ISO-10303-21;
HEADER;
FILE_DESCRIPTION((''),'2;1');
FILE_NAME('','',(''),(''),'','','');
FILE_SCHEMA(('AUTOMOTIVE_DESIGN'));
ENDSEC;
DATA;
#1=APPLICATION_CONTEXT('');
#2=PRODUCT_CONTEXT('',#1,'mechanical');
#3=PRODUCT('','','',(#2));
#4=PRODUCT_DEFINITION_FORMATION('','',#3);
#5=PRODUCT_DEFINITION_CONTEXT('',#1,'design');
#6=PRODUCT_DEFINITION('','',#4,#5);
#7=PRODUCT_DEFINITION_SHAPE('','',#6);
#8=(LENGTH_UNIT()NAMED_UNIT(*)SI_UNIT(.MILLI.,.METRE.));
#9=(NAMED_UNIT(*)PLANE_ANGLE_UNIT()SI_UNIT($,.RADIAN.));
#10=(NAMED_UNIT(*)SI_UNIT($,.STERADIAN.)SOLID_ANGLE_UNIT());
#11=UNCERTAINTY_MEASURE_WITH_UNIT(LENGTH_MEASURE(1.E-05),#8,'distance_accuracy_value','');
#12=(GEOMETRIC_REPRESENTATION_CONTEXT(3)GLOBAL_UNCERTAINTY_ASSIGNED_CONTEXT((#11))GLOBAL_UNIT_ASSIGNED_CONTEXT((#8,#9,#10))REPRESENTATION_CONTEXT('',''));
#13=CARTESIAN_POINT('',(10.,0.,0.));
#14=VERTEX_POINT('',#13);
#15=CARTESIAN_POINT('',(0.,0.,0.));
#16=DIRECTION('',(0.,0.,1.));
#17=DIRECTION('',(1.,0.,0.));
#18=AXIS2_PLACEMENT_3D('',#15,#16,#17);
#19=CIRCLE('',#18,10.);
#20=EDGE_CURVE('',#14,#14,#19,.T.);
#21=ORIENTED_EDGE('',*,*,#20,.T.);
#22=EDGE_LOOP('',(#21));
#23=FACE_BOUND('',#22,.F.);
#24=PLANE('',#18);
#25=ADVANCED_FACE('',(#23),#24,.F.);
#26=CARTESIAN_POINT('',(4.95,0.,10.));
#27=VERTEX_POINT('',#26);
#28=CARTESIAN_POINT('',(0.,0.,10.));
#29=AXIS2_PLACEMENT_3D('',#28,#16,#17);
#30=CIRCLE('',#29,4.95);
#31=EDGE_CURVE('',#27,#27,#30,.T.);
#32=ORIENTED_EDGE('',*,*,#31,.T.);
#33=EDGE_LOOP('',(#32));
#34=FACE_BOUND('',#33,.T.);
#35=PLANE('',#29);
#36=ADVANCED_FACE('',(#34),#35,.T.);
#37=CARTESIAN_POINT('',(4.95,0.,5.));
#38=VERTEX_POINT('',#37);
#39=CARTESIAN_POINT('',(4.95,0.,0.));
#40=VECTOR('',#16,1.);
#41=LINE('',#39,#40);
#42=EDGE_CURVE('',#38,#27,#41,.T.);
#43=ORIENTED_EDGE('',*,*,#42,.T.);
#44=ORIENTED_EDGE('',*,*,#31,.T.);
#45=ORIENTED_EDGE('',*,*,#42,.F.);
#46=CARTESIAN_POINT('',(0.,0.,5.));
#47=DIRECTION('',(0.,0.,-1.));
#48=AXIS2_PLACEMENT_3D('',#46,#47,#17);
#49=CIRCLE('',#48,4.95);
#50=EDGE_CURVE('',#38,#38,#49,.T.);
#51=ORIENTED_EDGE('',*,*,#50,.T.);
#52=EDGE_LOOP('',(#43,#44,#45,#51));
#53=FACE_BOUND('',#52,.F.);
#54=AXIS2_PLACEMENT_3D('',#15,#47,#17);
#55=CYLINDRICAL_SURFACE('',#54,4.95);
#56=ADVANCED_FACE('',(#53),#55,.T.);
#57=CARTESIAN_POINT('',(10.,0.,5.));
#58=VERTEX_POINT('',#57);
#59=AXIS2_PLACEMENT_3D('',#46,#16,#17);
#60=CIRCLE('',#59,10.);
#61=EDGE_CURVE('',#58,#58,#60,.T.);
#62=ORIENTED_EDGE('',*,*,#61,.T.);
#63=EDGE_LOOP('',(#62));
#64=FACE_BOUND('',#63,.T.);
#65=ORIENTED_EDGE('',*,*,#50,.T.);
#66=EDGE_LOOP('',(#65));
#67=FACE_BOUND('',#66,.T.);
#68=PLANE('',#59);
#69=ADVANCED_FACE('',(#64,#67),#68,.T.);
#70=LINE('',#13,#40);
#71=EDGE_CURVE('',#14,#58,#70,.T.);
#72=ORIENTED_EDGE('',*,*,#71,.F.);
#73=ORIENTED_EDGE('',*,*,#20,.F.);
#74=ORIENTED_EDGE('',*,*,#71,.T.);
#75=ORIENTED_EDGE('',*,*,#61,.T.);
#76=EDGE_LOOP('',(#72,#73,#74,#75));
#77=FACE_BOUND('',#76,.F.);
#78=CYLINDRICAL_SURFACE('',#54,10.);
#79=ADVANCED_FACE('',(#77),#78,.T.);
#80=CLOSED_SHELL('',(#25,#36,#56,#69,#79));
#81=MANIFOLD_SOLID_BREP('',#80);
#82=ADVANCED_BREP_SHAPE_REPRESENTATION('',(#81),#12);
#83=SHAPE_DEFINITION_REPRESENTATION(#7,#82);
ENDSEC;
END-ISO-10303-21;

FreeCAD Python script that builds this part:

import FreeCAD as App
import Part
import Sketcher

doc = App.newDocument("Part")
body = doc.addObject("PartDesign::Body", "Body")

# Sketch on XY plane
sketch1 = body.newObject("Sketcher::SketchObject", "Sketch")
sketch1.AttachmentSupport = (doc.getObject("XY_Plane"), [""])
sketch1.MapMode = "FlatFace"
sketch1.addGeometry(Part.Circle(App.Vector(0, 0, 0), App.Vector(0, 0, 1), 10), False)
sketch1.addConstraint([
    Sketcher.Constraint("Coincident", 0, 3, -1, 1),
    Sketcher.Constraint("Diameter", 0, 20.0),
])
pad1 = body.newObject("PartDesign::Pad", "Pad")
pad1.Profile = sketch1
pad1.Length = 5

# Sketch on XY plane
sketch2 = body.newObject("Sketcher::SketchObject", "Sketch001")
sketch2.AttachmentSupport = (doc.getObject("XY_Plane"), [""])
sketch2.MapMode = "FlatFace"
sketch2.addGeometry(Part.Circle(App.Vector(0, 0, 0), App.Vector(0, 0, 1), 5), False)
sketch2.addConstraint([
    Sketcher.Constraint("Coincident", 0, 3, -1, 1),
    Sketcher.Constraint("Diameter", 0, 9.9),
])
pad2 = body.newObject("PartDesign::Pad", "Pad001")
pad2.Profile = sketch2
pad2.Length = 10

doc.recompute()
